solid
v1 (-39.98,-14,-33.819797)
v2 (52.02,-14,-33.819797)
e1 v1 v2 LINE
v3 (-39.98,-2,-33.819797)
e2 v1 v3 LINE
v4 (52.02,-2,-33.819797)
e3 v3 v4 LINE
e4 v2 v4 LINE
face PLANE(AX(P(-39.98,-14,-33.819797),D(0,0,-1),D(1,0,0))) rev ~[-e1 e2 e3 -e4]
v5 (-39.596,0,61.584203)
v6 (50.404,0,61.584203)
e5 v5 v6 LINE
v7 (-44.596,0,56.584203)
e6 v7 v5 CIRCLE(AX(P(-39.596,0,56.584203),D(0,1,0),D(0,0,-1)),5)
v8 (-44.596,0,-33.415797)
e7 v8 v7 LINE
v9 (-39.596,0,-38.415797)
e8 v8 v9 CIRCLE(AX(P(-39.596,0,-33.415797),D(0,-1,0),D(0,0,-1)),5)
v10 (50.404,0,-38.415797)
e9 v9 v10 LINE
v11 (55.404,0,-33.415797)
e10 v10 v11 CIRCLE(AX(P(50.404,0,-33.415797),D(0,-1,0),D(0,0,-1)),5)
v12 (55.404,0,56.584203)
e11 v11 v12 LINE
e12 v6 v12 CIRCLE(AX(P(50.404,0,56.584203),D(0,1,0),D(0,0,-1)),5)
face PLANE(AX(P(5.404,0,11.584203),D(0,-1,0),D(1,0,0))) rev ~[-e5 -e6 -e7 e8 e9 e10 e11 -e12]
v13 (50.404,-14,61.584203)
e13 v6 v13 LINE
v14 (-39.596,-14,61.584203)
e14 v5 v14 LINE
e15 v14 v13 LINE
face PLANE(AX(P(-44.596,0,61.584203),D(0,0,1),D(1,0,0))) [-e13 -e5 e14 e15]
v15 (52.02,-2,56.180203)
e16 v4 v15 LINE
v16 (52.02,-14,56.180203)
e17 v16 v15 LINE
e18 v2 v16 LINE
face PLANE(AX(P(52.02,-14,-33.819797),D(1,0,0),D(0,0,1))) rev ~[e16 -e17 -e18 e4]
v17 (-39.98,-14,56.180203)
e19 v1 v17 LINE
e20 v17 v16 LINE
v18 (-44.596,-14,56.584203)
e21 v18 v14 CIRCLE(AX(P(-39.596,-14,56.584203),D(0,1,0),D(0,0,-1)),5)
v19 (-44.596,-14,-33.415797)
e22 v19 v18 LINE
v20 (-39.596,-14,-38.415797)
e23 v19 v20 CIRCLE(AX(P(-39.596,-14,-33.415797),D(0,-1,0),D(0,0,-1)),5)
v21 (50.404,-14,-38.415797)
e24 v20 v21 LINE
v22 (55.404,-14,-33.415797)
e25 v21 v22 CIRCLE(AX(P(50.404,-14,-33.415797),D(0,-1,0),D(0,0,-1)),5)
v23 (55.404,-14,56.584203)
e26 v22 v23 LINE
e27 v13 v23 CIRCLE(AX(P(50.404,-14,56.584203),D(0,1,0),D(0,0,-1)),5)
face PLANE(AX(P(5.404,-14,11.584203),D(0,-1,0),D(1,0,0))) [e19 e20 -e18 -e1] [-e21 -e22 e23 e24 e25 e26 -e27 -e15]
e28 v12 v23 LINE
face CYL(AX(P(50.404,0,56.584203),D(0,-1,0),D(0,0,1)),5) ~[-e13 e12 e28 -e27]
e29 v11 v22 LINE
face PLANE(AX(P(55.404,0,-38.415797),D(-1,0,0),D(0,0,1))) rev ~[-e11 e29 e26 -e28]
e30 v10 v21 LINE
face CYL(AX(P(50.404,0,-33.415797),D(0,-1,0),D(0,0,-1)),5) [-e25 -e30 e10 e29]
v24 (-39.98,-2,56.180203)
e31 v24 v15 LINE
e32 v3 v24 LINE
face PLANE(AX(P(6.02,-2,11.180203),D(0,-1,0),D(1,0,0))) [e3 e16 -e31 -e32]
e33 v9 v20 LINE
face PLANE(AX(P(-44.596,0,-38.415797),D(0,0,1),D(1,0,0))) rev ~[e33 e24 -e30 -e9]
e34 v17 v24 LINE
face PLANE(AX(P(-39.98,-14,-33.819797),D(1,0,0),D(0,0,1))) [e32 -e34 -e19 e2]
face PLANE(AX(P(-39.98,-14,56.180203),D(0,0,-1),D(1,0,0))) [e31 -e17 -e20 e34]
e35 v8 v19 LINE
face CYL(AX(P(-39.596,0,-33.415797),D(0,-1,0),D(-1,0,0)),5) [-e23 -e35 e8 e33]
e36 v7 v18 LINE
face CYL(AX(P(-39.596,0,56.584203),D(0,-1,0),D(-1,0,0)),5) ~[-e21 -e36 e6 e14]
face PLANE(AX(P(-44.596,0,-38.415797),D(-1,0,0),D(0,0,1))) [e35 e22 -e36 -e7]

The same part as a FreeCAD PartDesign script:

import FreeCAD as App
import Part
import Sketcher
from FreeCAD import Vector


def edges_at(feature, points):
    """Names of the edges that pass closest to the given points."""
    edges = feature.Shape.Edges
    near = lambda p: min(range(len(edges)), key=lambda i: edges[i].distToShape(Part.Vertex(*p))[0])
    return sorted({f"Edge{near(p) + 1}" for p in points})


def add_polygon(sketch, points):
    """Adds a closed chain of lines whose ends are joined by coincident constraints."""
    first, n = sketch.GeometryCount, len(points)
    for a, b in zip(points, points[1:] + points[:1]):
        sketch.addGeometry(Part.LineSegment(App.Vector(*a, 0), App.Vector(*b, 0)), False)
    for i in range(n):
        sketch.addConstraint(Sketcher.Constraint("Coincident", first + i, 2, first + (i + 1) % n, 1))

doc = App.newDocument("Part")
params = doc.addObject("Spreadsheet::Sheet", "Params")
for row, (alias, value) in enumerate([
    ("sketch1_width", "100 mm"),
    ("pad1_length", "14 mm"),
    ("sketch2_width", "92 mm"),
    ("sketch2_height", "90 mm"),
    ("pocket1_length", "12 mm"),
    ("fillet_radius", "5 mm"),
], start=1):
    params.set(f"A{row}", alias)
    params.set(f"B{row}", "=" + value)
    params.setAlias(f"B{row}", alias)

body = doc.addObject("PartDesign::Body", "Body")

sketch1 = body.newObject("Sketcher::SketchObject", "Sketch")
sketch1.AttachmentSupport = (doc.getObject("XZ_Plane"), [""])
sketch1.MapMode = "FlatFace"
add_polygon(sketch1, [(-45, 62), (-45, -38), (55, -38), (55, 62)])
sketch1.addConstraint(Sketcher.Constraint("Vertical", 0))
sketch1.addConstraint(Sketcher.Constraint("Horizontal", 1))
sketch1.addConstraint(Sketcher.Constraint("Vertical", 2))
sketch1.addConstraint(Sketcher.Constraint("Horizontal", 3))
sketch1.addConstraint(Sketcher.Constraint("Equal", 3, 0))
sketch1.addConstraint(Sketcher.Constraint("DistanceX", 1, 1, 1, 2, 100.0))
sketch1.addConstraint(Sketcher.Constraint("DistanceX", 0, 2, -1, 1, 44.596))
sketch1.addConstraint(Sketcher.Constraint("DistanceY", 0, 2, -1, 1, 38.415797))
sketch1.setExpression("Constraints[9]", "Params.sketch1_width")
pad1 = body.newObject("PartDesign::Pad", "Pad")
pad1.Profile = sketch1
pad1.setExpression("Length", "Params.pad1_length")

sketch2 = body.newObject("Sketcher::SketchObject", "Sketch001")
sketch2.AttachmentSupport = (doc.getObject("XZ_Plane"), [""])
sketch2.MapMode = "FlatFace"
sketch2.AttachmentOffset = App.Placement(Vector(0, 0, 14), App.Rotation())
add_polygon(sketch2, [(-40, 56), (-40, -34), (52, -34), (52, 56)])
sketch2.addConstraint(Sketcher.Constraint("Vertical", 0))
sketch2.addConstraint(Sketcher.Constraint("Horizontal", 1))
sketch2.addConstraint(Sketcher.Constraint("Vertical", 2))
sketch2.addConstraint(Sketcher.Constraint("Horizontal", 3))
sketch2.addConstraint(Sketcher.Constraint("DistanceX", 1, 1, 1, 2, 92.0))
sketch2.addConstraint(Sketcher.Constraint("DistanceY", 0, 2, 0, 1, 90.0))
sketch2.addConstraint(Sketcher.Constraint("DistanceX", 0, 2, -1, 1, 39.98))
sketch2.addConstraint(Sketcher.Constraint("DistanceY", 0, 2, -1, 1, 33.819797))
sketch2.setExpression("Constraints[8]", "Params.sketch2_width")
sketch2.setExpression("Constraints[9]", "Params.sketch2_height")
pocket1 = body.newObject("PartDesign::Pocket", "Pocket")
pocket1.Profile = sketch2
pocket1.setExpression("Length", "Params.pocket1_length")
doc.recompute()

fillet = body.newObject("PartDesign::Fillet", "Fillet")
fillet.Base = (pocket1, edges_at(pocket1, [
    (-44.596, -7, -38.416),
    (55.404, -7, -38.416),
    (55.404, -7, 61.584),
    (-44.596, -7, 61.584),
]))
fillet.setExpression("Radius", "Params.fillet_radius")

doc.recompute()
